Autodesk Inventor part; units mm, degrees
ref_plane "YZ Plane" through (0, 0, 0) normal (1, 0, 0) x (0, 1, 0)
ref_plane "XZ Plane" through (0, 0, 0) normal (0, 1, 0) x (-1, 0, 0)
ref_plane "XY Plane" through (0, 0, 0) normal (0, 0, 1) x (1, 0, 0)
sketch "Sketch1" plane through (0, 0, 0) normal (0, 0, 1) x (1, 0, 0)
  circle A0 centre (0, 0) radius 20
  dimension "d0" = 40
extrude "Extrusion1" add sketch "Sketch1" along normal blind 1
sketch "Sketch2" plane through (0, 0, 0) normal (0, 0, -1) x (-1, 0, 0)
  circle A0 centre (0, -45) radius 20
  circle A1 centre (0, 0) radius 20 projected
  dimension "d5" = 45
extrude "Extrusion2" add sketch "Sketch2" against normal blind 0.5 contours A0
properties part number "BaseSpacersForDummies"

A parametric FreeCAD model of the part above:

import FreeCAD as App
import Part
import Sketcher
Q = App.Units.Quantity

doc = App.newDocument("Part")
body = doc.addObject("PartDesign::Body", "Body")
body.AllowCompound = True

# Sketch on XY plane
sketch1 = doc.addObject("Sketcher::SketchObject", "Sketch")
body.addObject(sketch1)
sketch1.AttachmentSupport = (doc.XY_Plane, [""])
sketch1.MapMode = "FlatFace"
sketch1.addGeometry(Part.Circle(App.Vector(0, 0, 0), App.Vector(0, 0, 1), 20), False)
sketch1.addConstraint([
    Sketcher.Constraint("Coincident", 0, 3, -1, 1),
    Sketcher.Constraint("Diameter", 0, Q("40 mm")),
])
pad1 = doc.addObject("PartDesign::Pad", "Pad")
body.addObject(pad1)
pad1.Profile = sketch1
pad1.Length = 1

# Sketch on XY plane
sketch2 = doc.addObject("Sketcher::SketchObject", "Sketch001")
body.addObject(sketch2)
sketch2.AttachmentSupport = (doc.XY_Plane, [""])
sketch2.MapMode = "FlatFace"
sketch2.addGeometry(Part.Circle(App.Vector(0, -45, 0), App.Vector(0, 0, 1), 20), False)
sketch2.addConstraint([
    Sketcher.Constraint("PointOnObject", 0, 3, -2),
    Sketcher.Constraint("Diameter", 0, Q("40 mm")),
    Sketcher.Constraint("DistanceY", 0, 3, -1, 1, Q("45 mm")),
])
pad2 = doc.addObject("PartDesign::Pad", "Pad001")
body.addObject(pad2)
pad2.Profile = sketch2
pad2.Length = 0.5

doc.recompute()
